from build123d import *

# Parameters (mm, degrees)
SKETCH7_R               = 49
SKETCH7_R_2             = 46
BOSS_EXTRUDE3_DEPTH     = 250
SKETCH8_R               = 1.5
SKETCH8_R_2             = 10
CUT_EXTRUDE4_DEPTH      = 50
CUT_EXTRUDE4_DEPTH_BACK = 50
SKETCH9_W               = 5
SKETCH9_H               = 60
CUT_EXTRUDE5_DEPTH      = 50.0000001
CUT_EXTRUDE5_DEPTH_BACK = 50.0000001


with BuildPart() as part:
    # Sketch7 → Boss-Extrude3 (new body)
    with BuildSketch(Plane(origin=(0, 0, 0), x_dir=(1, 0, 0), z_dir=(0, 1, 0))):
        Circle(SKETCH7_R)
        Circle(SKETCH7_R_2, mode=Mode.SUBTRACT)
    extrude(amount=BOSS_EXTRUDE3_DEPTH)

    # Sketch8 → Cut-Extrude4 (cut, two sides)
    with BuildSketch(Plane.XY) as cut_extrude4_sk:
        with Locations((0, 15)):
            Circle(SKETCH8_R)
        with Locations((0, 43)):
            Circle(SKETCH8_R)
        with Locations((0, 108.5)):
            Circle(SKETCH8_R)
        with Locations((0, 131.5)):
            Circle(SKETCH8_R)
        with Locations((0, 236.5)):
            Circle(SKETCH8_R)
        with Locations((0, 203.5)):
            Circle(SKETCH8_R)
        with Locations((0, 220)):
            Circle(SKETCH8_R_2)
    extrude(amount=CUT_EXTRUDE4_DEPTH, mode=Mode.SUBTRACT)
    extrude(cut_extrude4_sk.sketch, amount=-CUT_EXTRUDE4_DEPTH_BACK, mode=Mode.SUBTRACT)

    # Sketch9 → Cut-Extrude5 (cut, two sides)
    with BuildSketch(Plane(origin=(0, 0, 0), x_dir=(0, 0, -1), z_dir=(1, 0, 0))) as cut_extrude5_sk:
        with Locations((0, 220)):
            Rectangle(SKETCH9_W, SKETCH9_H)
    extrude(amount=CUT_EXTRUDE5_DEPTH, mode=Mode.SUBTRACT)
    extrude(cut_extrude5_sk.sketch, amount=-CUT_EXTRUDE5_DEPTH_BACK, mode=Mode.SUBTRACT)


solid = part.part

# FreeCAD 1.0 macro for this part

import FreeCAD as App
import Part
import Sketcher

doc = App.newDocument("Part")
body = doc.addObject("PartDesign::Body", "Body")

# Sketch on XZ plane
sketch1 = doc.addObject("Sketcher::SketchObject", "Sketch")
body.addObject(sketch1)
sketch1.AttachmentSupport = (doc.XZ_Plane, [""])
sketch1.MapMode = "FlatFace"
sketch1.addGeometry([
    Part.Circle(App.Vector(0, 0, 0), App.Vector(0, 0, 1), 49),
    Part.Circle(App.Vector(0, 0, 0), App.Vector(0, 0, 1), 46),
], False)
sketch1.addConstraint([
    Sketcher.Constraint("Coincident", 0, 3, -1, 1),
    Sketcher.Constraint("Coincident", 1, 3, -1, 1),
    Sketcher.Constraint("Diameter", 0, 98.0),
    Sketcher.Constraint("Diameter", 1, 92.0),
])
pad1 = doc.addObject("PartDesign::Pad", "Pad")
body.addObject(pad1)
pad1.Profile = sketch1
pad1.Length = 250
pad1.Reversed = True

# Sketch on XY plane
sketch2 = doc.addObject("Sketcher::SketchObject", "Sketch001")
body.addObject(sketch2)
sketch2.AttachmentSupport = (doc.XY_Plane, [""])
sketch2.MapMode = "FlatFace"
sketch2.addGeometry([
    Part.Circle(App.Vector(0, 15, 0), App.Vector(0, 0, 1), 1.5),  # 0
    Part.Circle(App.Vector(0, 43, 0), App.Vector(0, 0, 1), 1.5),  # 1
    Part.Circle(App.Vector(0, 108.5, 0), App.Vector(0, 0, 1), 1.5),  # 2
    Part.Circle(App.Vector(0, 131.5, 0), App.Vector(0, 0, 1), 1.5),  # 3
    Part.Circle(App.Vector(0, 236.5, 0), App.Vector(0, 0, 1), 1.5),  # 4
    Part.Circle(App.Vector(0, 203.5, 0), App.Vector(0, 0, 1), 1.5),  # 5
    Part.Circle(App.Vector(0, 220, 0), App.Vector(0, 0, 1), 10),  # 6
], False)
sketch2.addConstraint([
    Sketcher.Constraint("Equal", 0, 1),
    Sketcher.Constraint("Equal", 1, 2),
    Sketcher.Constraint("Equal", 2, 3),
    Sketcher.Constraint("Equal", 3, 4),
    Sketcher.Constraint("Equal", 4, 5),
    Sketcher.Constraint("PointOnObject", 0, 3, -2),
    Sketcher.Constraint("PointOnObject", 1, 3, -2),
    Sketcher.Constraint("PointOnObject", 2, 3, -2),
    Sketcher.Constraint("PointOnObject", 3, 3, -2),
    Sketcher.Constraint("PointOnObject", 4, 3, -2),
    Sketcher.Constraint("PointOnObject", 5, 3, -2),
    Sketcher.Constraint("PointOnObject", 6, 3, -2),
    Sketcher.Constraint("Diameter", 0, 3.0),
    Sketcher.Constraint("Diameter", 6, 20.0),
    Sketcher.Constraint("DistanceY", -1, 1, 0, 3, 15.0),
    Sketcher.Constraint("DistanceY", -1, 1, 1, 3, 43.0),
    Sketcher.Constraint("DistanceY", -1, 1, 6, 3, 220.0),
    Sketcher.Constraint("DistanceY", 2, 3, 3, 3, 23.0),
    Sketcher.Constraint("DistanceY", 3, 3, 4, 3, 105.0),
    Sketcher.Constraint("DistanceY", 5, 3, 4, 3, 33.0),
    Sketcher.Constraint("DistanceY", -1, 1, 2, 3, 108.5),
])
pocket1 = doc.addObject("PartDesign::Pocket", "Pocket")
body.addObject(pocket1)
pocket1.Profile = sketch2
pocket1.Type = "ThroughAll"
pocket1.Midplane = True

# Sketch on YZ plane
sketch3 = doc.addObject("Sketcher::SketchObject", "Sketch002")
body.addObject(sketch3)
sketch3.AttachmentSupport = (doc.YZ_Plane, [""])
sketch3.MapMode = "FlatFace"
sketch3.addGeometry([
    Part.LineSegment(App.Vector(250, 2, 0), App.Vector(190, 2, 0)),
    Part.LineSegment(App.Vector(190, 2, 0), App.Vector(190, -2, 0)),
    Part.LineSegment(App.Vector(190, -2, 0), App.Vector(250, -2, 0)),
    Part.LineSegment(App.Vector(250, -2, 0), App.Vector(250, 2, 0)),
], False)
sketch3.addConstraint([
    Sketcher.Constraint("Coincident", 0, 2, 1, 1),
    Sketcher.Constraint("Coincident", 1, 2, 2, 1),
    Sketcher.Constraint("Coincident", 2, 2, 3, 1),
    Sketcher.Constraint("Coincident", 3, 2, 0, 1),
    Sketcher.Constraint("Horizontal", 0),
    Sketcher.Constraint("Vertical", 1),
    Sketcher.Constraint("Horizontal", 2),
    Sketcher.Constraint("Vertical", 3),
    Sketcher.Constraint("DistanceX", 0, 2, 0, 1, 60.0),
    Sketcher.Constraint("DistanceY", 1, 2, 1, 1, 5.0),
    Sketcher.Constraint("DistanceX", -1, 1, 0, 2, 190.0),
    Sketcher.Constraint("DistanceY", -1, 1, 0, 2, 2.5),
])
pocket2 = doc.addObject("PartDesign::Pocket", "Pocket001")
body.addObject(pocket2)
pocket2.Profile = sketch3
pocket2.Type = "ThroughAll"
pocket2.Midplane = True

doc.recompute()
